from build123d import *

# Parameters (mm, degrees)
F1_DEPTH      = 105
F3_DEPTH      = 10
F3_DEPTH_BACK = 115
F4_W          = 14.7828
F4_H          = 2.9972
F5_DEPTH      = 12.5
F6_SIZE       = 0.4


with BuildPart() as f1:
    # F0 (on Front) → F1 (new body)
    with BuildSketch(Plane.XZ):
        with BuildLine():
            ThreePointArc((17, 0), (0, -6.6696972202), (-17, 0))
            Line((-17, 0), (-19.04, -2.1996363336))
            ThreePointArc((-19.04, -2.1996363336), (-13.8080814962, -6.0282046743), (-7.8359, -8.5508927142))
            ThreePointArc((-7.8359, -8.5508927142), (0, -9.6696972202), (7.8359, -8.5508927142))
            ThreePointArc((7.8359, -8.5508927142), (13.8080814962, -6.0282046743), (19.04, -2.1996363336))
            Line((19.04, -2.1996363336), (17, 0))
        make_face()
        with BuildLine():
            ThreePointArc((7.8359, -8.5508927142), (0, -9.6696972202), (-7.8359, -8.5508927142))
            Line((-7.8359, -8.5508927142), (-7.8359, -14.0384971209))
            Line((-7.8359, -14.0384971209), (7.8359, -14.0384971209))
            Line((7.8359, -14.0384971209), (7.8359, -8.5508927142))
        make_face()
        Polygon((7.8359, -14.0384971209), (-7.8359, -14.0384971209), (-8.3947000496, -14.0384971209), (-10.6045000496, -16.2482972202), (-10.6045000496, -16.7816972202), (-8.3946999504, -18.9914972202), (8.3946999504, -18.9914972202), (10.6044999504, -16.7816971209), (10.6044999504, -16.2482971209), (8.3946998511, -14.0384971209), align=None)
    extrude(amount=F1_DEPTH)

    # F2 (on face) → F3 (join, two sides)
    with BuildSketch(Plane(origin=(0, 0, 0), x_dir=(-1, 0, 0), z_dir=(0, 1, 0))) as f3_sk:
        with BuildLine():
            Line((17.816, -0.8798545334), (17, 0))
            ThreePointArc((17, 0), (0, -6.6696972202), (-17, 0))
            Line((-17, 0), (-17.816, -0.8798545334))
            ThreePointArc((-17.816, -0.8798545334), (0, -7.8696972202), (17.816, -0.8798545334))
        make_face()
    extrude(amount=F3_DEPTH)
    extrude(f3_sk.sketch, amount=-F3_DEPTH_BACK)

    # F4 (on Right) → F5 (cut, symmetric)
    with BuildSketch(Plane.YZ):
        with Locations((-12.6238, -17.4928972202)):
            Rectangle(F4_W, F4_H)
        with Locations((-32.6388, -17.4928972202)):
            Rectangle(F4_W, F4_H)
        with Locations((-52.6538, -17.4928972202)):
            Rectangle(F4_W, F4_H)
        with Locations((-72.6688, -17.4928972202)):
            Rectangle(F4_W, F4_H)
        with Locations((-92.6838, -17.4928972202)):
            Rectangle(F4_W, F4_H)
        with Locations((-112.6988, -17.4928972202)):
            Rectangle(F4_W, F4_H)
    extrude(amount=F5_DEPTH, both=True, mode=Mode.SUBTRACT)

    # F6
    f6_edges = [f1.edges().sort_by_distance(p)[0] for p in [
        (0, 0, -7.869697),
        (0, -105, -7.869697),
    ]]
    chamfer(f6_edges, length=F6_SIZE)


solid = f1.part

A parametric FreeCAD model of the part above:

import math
import FreeCAD as App
import Part
import Sketcher

V = App.Vector
Q = App.Units.Quantity


def edges_at(feature, points):
    """Names of the edges that pass closest to the given points."""
    edges = feature.Shape.Edges
    near = lambda p: min(range(len(edges)), key=lambda i: edges[i].distToShape(Part.Vertex(*p))[0])
    return sorted({f"Edge{near(p) + 1}" for p in points})


def add_polygon(sketch, points):
    """Adds a closed chain of lines whose ends are joined by coincident constraints."""
    first, n = sketch.GeometryCount, len(points)
    for a, b in zip(points, points[1:] + points[:1]):
        sketch.addGeometry(Part.LineSegment(App.Vector(*a, 0), App.Vector(*b, 0)), False)
    for i in range(n):
        sketch.addConstraint(Sketcher.Constraint("Coincident", first + i, 2, first + (i + 1) % n, 1))

doc = App.newDocument("Part")
body = doc.addObject("PartDesign::Body", "Body")

# Sketch on XZ plane
sketch1 = body.newObject("Sketcher::SketchObject", "Sketch")
sketch1.AttachmentSupport = (doc.getObject("XZ_Plane"), [""])
sketch1.MapMode = "FlatFace"
sketch1.addGeometry([
    Part.ArcOfCircle(Part.Circle(V(0, 18.330303, 0), V(0, 0, 1), 25), math.radians(-132.843643), math.radians(-47.156357)),  # 0
    Part.LineSegment(V(-17, 0, 0), V(-19.04, -2.199636, 0)),  # 1
    Part.ArcOfCircle(Part.Circle(V(0, 18.330303, 0), V(0, 0, 1), 28), math.radians(-132.843643), math.radians(-106.251466)),  # 2
    Part.LineSegment(V(-7.8359, -8.550893, 0), V(-7.8359, -14.038497, 0)),  # 3
    Part.LineSegment(V(-7.8359, -14.038497, 0), V(-8.3947, -14.038497, 0)),  # 4
    Part.LineSegment(V(-8.3947, -14.038497, 0), V(-10.6045, -16.248297, 0)),  # 5
    Part.LineSegment(V(-10.6045, -16.248297, 0), V(-10.6045, -16.781697, 0)),  # 6
    Part.LineSegment(V(-10.6045, -16.781697, 0), V(-8.3947, -18.991497, 0)),  # 7
    Part.LineSegment(V(-8.3947, -18.991497, 0), V(8.3947, -18.991497, 0)),  # 8
    Part.LineSegment(V(8.3947, -18.991497, 0), V(10.6045, -16.781697, 0)),  # 9
    Part.LineSegment(V(10.6045, -16.781697, 0), V(10.6045, -16.248297, 0)),  # 10
    Part.LineSegment(V(10.6045, -16.248297, 0), V(8.3947, -14.038497, 0)),  # 11
    Part.LineSegment(V(8.3947, -14.038497, 0), V(7.8359, -14.038497, 0)),  # 12
    Part.LineSegment(V(7.8359, -14.038497, 0), V(7.8359, -8.550893, 0)),  # 13
    Part.ArcOfCircle(Part.Circle(V(0, 18.330303, 0), V(0, 0, 1), 28), math.radians(-73.748534), math.radians(-47.156357)),  # 14
    Part.LineSegment(V(19.04, -2.199636, 0), V(17, 0, 0)),  # 15
], False)
sketch1.addConstraint([
    Sketcher.Constraint("Coincident", 0, 1, 1, 1),
    Sketcher.Constraint("Coincident", 1, 2, 2, 1),
    Sketcher.Constraint("Coincident", 2, 2, 3, 1),
    Sketcher.Constraint("Coincident", 3, 2, 4, 1),
    Sketcher.Constraint("Coincident", 4, 2, 5, 1),
    Sketcher.Constraint("Coincident", 5, 2, 6, 1),
    Sketcher.Constraint("Coincident", 6, 2, 7, 1),
    Sketcher.Constraint("Coincident", 7, 2, 8, 1),
    Sketcher.Constraint("Coincident", 8, 2, 9, 1),
    Sketcher.Constraint("Coincident", 9, 2, 10, 1),
    Sketcher.Constraint("Coincident", 10, 2, 11, 1),
    Sketcher.Constraint("Coincident", 11, 2, 12, 1),
    Sketcher.Constraint("Coincident", 12, 2, 13, 1),
    Sketcher.Constraint("Coincident", 13, 2, 14, 1),
    Sketcher.Constraint("Coincident", 14, 2, 15, 1),
    Sketcher.Constraint("Coincident", 15, 2, 0, 2),
    Sketcher.Constraint("Vertical", 3),
    Sketcher.Constraint("Horizontal", 4),
    Sketcher.Constraint("Vertical", 6),
    Sketcher.Constraint("Horizontal", 8),
    Sketcher.Constraint("Vertical", 10),
    Sketcher.Constraint("Horizontal", 12),
    Sketcher.Constraint("Vertical", 13),
    Sketcher.Constraint("Coincident", 2, 3, 0, 3),
    Sketcher.Constraint("Coincident", 14, 3, 0, 3),
    Sketcher.Constraint("Equal", 2, 14),
    Sketcher.Constraint("Symmetric", 0, 1, 15, 2, -1, 1),
    Sketcher.Constraint("Symmetric", 6, 2, 9, 2, -2),
    Sketcher.Constraint("Symmetric", 4, 2, 11, 2, -2),
    Sketcher.Constraint("Symmetric", 2, 2, 13, 2, -2),
    Sketcher.Constraint("Perpendicular", 5, 7),
    Sketcher.Constraint("Perpendicular", 7, 9),
    Sketcher.Constraint("Perpendicular", 9, 11),
    Sketcher.Constraint("Horizontal", 5, 2, 10, 2),
    Sketcher.Constraint("Horizontal", 1, 2, 14, 2),
    Sketcher.Constraint("Vertical", 4, 2, 7, 2),
    Sketcher.Constraint("Radius", 0, Q("25 mm")),
    Sketcher.Constraint("Radius", 2, Q("28 mm")),
    Sketcher.Constraint("DistanceX", 0, 1, -1, 1, Q("17 mm")),
    Sketcher.Constraint("DistanceX", 1, 2, -1, 1, Q("19.04 mm")),
    Sketcher.Constraint("DistanceX", 4, 2, 4, 1, Q("0.5588 mm")),
    Sketcher.Constraint("DistanceX", 8, 1, 8, 2, Q("16.7894 mm")),
    Sketcher.Constraint("DistanceY", 6, 2, 6, 1, Q("0.5334 mm")),
    Sketcher.Constraint("DistanceY", 7, 2, 4, 2, Q("4.953 mm")),
    Sketcher.Constraint("DistanceY", 3, 2, 0, 3, Q("32.3688 mm")),
])
pad1 = body.newObject("PartDesign::Pad", "Pad")
pad1.Profile = sketch1
pad1.Length = 105

# Sketch on XZ plane
sketch2 = body.newObject("Sketcher::SketchObject", "Sketch001")
sketch2.AttachmentSupport = (doc.getObject("XZ_Plane"), [""])
sketch2.MapMode = "FlatFace"
sketch2.addGeometry([
    Part.LineSegment(V(-17.816, -0.879855, 0), V(-17, 0, 0)),
    Part.ArcOfCircle(Part.Circle(V(0, 18.330303, 0), V(0, 0, 1), 25), math.radians(-132.843643), math.radians(-47.156357)),
    Part.LineSegment(V(17, 0, 0), V(17.816, -0.879855, 0)),
    Part.ArcOfCircle(Part.Circle(V(0, 18.330303, 0), V(0, 0, 1), 26.2), math.radians(-132.843643), math.radians(-47.156357)),
], False)
sketch2.addConstraint([
    Sketcher.Constraint("Coincident", 0, 2, 1, 1),
    Sketcher.Constraint("Coincident", 1, 2, 2, 1),
    Sketcher.Constraint("Coincident", 2, 2, 3, 2),
    Sketcher.Constraint("Coincident", 3, 1, 0, 1),
    Sketcher.Constraint("Coincident", 3, 3, 1, 3),
    Sketcher.Constraint("Symmetric", 0, 2, 1, 2, -1, 1),
    Sketcher.Constraint("Symmetric", 2, 2, 3, 1, -2),
    Sketcher.Constraint("Radius", 1, Q("25 mm")),
    Sketcher.Constraint("Radius", 3, Q("26.2 mm")),
    Sketcher.Constraint("DistanceX", 0, 2, -1, 1, Q("17 mm")),
    Sketcher.Constraint("DistanceX", -1, 1, 2, 2, Q("17.816 mm")),
])
pad2 = body.newObject("PartDesign::Pad", "Pad001")
pad2.Profile = sketch2
pad2.Type = "TwoLengths"
pad2.Length = 10
pad2.Length2 = 115
pad2.Reversed = True

# Sketch on YZ plane
sketch3 = body.newObject("Sketcher::SketchObject", "Sketch002")
sketch3.AttachmentSupport = (doc.getObject("YZ_Plane"), [""])
sketch3.MapMode = "FlatFace"
add_polygon(sketch3, [(-20.0152, -15.994297), (-20.0152, -18.991497), (-5.2324, -18.991497), (-5.2324, -15.994297)])  # lines 0-3
add_polygon(sketch3, [(-40.0302, -15.994297), (-40.0302, -18.991497), (-25.2474, -18.991497), (-25.2474, -15.994297)])  # lines 4-7
add_polygon(sketch3, [(-60.0452, -15.994297), (-60.0452, -18.991497), (-45.2624, -18.991497), (-45.2624, -15.994297)])  # lines 8-11
add_polygon(sketch3, [(-80.0602, -15.994297), (-80.0602, -18.991497), (-65.2774, -18.991497), (-65.2774, -15.994297)])  # lines 12-15
add_polygon(sketch3, [(-100.0752, -15.994297), (-100.0752, -18.991497), (-85.2924, -18.991497), (-85.2924, -15.994297)])  # lines 16-19
add_polygon(sketch3, [(-120.0902, -15.994297), (-120.0902, -18.991497), (-105.3074, -18.991497), (-105.3074, -15.994297)])  # lines 20-23
sketch3.addConstraint([
    Sketcher.Constraint("Vertical", 0),
    Sketcher.Constraint("Horizontal", 1),
    Sketcher.Constraint("Vertical", 2),
    Sketcher.Constraint("Horizontal", 3),
    Sketcher.Constraint("Vertical", 4),
    Sketcher.Constraint("Horizontal", 5),
    Sketcher.Constraint("Vertical", 6),
    Sketcher.Constraint("Horizontal", 7),
    Sketcher.Constraint("Vertical", 8),
    Sketcher.Constraint("Horizontal", 9),
    Sketcher.Constraint("Vertical", 10),
    Sketcher.Constraint("Horizontal", 11),
    Sketcher.Constraint("Vertical", 12),
    Sketcher.Constraint("Horizontal", 13),
    Sketcher.Constraint("Vertical", 14),
    Sketcher.Constraint("Horizontal", 15),
    Sketcher.Constraint("Vertical", 16),
    Sketcher.Constraint("Horizontal", 17),
    Sketcher.Constraint("Vertical", 18),
    Sketcher.Constraint("Horizontal", 19),
    Sketcher.Constraint("Vertical", 20),
    Sketcher.Constraint("Horizontal", 21),
    Sketcher.Constraint("Vertical", 22),
    Sketcher.Constraint("Horizontal", 23),
    Sketcher.Constraint("Horizontal", 1, 2, 4, 2),
    Sketcher.Constraint("Horizontal", 3, 2, 6, 2),
    Sketcher.Constraint("Horizontal", 5, 2, 8, 2),
    Sketcher.Constraint("Horizontal", 7, 2, 10, 2),
    Sketcher.Constraint("Horizontal", 9, 2, 12, 2),
    Sketcher.Constraint("Horizontal", 11, 2, 14, 2),
    Sketcher.Constraint("Horizontal", 13, 2, 16, 2),
    Sketcher.Constraint("Horizontal", 15, 2, 18, 2),
    Sketcher.Constraint("Horizontal", 17, 2, 20, 2),
    Sketcher.Constraint("Horizontal", 19, 2, 22, 2),
    Sketcher.Constraint("Equal", 3, 5),
    Sketcher.Constraint("Equal", 7, 9),
    Sketcher.Constraint("Equal", 11, 13),
    Sketcher.Constraint("Equal", 15, 17),
    Sketcher.Constraint("Equal", 19, 21),
    Sketcher.Constraint("DistanceX", 8, 2, 0, 2, Q("40.03 mm")),
    Sketcher.Constraint("DistanceX", 12, 2, 4, 2, Q("40.03 mm")),
    Sketcher.Constraint("DistanceX", 16, 2, 8, 2, Q("40.03 mm")),
    Sketcher.Constraint("DistanceX", 20, 2, 12, 2, Q("40.03 mm")),
    Sketcher.Constraint("DistanceX", 1, 1, 1, 2, Q("14.7828 mm")),
    Sketcher.Constraint("DistanceY", 0, 2, 0, 1, Q("2.9972 mm")),
    Sketcher.Constraint("DistanceX", 4, 2, 0, 2, Q("20.015 mm")),
    Sketcher.Constraint("DistanceX", 0, 2, -1, 1, Q("20.0152 mm")),
    Sketcher.Constraint("DistanceY", 0, 2, -1, 1, Q("18.991497 mm")),
])
pocket1 = body.newObject("PartDesign::Pocket", "Pocket")
pocket1.Profile = sketch3
pocket1.Length = 25
pocket1.Midplane = True
doc.recompute()

chamfer = body.newObject("PartDesign::Chamfer", "Chamfer")
chamfer.Base = (pocket1, edges_at(pocket1, [(0, 0, -7.87), (0, -105, -7.87)]))
chamfer.Size = 0.4

doc.recompute()
